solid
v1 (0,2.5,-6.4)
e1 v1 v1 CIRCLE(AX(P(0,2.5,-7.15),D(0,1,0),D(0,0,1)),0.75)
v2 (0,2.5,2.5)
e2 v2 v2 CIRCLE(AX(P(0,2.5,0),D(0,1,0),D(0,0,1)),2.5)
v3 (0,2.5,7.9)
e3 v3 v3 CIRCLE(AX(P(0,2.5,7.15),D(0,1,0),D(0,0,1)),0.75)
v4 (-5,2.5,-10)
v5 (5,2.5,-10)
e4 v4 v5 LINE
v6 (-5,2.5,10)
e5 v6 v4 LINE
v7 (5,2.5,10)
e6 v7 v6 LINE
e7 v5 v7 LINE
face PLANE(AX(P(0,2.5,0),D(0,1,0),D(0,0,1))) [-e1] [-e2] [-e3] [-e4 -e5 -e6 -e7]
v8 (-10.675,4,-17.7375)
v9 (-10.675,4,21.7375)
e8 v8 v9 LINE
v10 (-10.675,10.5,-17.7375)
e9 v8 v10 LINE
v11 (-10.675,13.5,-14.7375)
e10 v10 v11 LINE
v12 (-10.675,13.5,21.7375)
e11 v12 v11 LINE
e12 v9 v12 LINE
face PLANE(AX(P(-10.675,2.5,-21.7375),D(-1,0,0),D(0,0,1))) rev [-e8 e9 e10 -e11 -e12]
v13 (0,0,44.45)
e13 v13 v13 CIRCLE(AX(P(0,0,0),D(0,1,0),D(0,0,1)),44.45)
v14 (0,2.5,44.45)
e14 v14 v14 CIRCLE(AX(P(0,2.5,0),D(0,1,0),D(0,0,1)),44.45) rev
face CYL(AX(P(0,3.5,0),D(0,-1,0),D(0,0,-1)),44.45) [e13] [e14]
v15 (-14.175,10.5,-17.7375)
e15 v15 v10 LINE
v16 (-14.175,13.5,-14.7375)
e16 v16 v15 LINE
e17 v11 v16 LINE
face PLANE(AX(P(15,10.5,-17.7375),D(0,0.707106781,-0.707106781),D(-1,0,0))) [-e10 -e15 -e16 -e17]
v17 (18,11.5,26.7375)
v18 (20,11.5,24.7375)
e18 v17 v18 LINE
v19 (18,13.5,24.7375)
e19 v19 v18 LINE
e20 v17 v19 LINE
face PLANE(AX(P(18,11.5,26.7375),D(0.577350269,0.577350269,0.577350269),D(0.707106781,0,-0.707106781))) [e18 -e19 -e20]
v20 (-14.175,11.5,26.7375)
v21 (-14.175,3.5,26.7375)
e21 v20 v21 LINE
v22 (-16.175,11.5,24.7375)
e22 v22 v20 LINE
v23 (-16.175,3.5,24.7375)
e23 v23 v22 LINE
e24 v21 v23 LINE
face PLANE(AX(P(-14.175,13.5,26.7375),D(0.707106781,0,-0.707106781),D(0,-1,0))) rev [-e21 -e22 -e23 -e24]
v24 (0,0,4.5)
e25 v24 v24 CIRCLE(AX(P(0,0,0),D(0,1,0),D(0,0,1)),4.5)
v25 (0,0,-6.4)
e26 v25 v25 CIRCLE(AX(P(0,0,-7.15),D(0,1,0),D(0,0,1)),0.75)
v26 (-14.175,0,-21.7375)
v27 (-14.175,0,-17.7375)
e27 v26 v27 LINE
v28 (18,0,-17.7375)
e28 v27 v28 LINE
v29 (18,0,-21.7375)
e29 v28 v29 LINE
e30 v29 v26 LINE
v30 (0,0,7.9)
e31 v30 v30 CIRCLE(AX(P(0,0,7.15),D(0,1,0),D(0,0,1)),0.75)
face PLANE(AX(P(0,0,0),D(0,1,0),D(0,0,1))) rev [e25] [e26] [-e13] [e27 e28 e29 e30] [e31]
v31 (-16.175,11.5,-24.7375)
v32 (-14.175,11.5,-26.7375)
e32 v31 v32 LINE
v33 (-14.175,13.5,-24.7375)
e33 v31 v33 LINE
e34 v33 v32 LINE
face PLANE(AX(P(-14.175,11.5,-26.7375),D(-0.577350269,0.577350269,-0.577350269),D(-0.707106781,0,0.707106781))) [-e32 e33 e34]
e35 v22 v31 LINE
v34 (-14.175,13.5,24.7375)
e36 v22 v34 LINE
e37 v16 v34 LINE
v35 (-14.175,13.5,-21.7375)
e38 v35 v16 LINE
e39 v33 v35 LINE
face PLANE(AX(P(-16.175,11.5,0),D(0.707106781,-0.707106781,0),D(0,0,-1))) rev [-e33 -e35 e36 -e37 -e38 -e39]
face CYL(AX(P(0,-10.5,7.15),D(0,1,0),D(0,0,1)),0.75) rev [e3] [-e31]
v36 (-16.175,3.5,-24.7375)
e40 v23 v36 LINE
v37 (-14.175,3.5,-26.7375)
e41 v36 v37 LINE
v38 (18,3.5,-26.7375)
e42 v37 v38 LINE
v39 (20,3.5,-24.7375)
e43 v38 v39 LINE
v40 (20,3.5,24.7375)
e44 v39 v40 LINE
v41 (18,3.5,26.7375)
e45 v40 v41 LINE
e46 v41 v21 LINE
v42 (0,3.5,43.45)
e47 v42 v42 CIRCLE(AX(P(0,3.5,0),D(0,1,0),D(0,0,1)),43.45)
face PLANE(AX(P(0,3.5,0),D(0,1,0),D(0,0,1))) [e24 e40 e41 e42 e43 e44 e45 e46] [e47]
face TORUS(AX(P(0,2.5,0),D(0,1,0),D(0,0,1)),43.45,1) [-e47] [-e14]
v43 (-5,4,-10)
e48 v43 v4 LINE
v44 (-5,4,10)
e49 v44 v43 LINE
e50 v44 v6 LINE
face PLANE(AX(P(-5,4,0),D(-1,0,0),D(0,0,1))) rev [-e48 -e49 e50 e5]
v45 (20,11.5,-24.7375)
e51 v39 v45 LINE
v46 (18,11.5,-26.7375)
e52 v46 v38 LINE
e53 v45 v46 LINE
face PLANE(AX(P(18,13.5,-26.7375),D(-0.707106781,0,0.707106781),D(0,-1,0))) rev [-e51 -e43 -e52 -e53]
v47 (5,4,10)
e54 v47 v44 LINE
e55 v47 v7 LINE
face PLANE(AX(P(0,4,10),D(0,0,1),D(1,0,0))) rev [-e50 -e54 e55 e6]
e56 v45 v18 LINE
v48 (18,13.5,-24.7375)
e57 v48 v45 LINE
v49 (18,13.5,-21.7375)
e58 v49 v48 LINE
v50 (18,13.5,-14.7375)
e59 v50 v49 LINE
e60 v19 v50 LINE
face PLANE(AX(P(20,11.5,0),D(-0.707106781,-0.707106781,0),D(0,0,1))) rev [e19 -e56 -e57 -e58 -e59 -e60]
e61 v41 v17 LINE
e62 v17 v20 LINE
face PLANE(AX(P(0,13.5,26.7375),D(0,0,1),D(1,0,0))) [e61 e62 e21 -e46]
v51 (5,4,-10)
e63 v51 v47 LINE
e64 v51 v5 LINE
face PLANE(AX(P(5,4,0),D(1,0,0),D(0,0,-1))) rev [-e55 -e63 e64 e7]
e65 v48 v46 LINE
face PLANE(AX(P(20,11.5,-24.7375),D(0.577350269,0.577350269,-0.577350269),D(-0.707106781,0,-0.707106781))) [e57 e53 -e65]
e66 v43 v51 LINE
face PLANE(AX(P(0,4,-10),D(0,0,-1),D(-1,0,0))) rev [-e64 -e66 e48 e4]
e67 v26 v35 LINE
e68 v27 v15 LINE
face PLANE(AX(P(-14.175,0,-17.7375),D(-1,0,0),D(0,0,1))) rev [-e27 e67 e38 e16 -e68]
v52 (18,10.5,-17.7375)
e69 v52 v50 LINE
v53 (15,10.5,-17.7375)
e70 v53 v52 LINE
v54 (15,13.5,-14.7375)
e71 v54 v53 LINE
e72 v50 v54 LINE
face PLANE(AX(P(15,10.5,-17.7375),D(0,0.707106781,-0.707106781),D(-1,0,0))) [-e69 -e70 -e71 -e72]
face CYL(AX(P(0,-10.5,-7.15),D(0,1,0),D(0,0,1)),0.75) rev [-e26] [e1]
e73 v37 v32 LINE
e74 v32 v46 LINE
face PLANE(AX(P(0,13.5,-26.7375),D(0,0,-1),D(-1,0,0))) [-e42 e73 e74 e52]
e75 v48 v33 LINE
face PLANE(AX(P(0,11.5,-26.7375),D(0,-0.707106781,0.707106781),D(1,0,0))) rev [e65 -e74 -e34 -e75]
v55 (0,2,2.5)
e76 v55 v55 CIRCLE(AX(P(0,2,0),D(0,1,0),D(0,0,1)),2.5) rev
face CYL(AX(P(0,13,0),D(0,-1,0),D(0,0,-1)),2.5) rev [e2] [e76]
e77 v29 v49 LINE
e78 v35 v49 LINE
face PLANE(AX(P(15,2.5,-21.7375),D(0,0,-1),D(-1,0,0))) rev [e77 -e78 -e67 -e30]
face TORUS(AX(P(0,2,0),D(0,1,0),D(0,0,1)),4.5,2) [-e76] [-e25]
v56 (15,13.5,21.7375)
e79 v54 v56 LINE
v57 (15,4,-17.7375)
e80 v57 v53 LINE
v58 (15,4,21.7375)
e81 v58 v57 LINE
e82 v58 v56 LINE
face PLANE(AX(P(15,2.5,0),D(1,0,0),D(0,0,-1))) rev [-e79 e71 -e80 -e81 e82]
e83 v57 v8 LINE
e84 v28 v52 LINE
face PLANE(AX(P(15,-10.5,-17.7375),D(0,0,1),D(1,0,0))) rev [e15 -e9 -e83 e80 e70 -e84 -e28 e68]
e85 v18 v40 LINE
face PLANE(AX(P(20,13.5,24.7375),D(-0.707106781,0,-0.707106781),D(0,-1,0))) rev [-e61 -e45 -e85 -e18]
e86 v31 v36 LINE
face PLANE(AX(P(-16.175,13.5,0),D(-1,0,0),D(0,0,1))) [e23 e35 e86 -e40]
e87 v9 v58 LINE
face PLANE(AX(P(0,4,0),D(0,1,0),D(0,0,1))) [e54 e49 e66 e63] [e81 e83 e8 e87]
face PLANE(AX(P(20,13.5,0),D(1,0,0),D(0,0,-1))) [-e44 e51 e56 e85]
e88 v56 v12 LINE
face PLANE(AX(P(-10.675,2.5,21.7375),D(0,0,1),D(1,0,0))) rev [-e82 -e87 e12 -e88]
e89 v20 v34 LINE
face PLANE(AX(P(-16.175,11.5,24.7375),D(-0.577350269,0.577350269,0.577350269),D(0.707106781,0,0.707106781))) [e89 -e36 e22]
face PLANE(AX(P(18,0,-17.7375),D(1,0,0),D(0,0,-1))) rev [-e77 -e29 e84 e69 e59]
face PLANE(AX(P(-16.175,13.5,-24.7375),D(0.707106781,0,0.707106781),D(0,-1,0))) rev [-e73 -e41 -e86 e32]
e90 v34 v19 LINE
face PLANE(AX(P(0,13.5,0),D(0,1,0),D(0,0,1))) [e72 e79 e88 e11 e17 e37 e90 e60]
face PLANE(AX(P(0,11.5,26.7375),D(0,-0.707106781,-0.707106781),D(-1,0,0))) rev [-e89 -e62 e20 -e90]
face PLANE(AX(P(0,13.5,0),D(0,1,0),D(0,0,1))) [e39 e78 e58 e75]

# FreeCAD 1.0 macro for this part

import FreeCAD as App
import Part
import Sketcher


def edges_at(feature, points):
    """Names of the edges that pass closest to the given points."""
    edges = feature.Shape.Edges
    near = lambda p: min(range(len(edges)), key=lambda i: edges[i].distToShape(Part.Vertex(*p))[0])
    return sorted({f"Edge{near(p) + 1}" for p in points})

doc = App.newDocument("Part")
params = doc.addObject("Spreadsheet::Sheet", "Params")
for row, (alias, value) in enumerate([
    ("sketch1_diameter", "88.9 mm"),
    ("pad1_length", "3.5 mm"),
    ("pocket1_length", "1 mm"),
    ("pad2_length", "10 mm"),
    ("sketch4_height", "4 mm"),
    ("pocket2_length", "13 mm"),
    ("sketch5_diameter", "1.5 mm"),
    ("pocket3_length", "13 mm"),
    ("sketch6_diameter", "5 mm"),
    ("pocket4_length", "13 mm"),
    ("fillet_radius", "1 mm"),
    ("chamfer_size", "2 mm"),
    ("fillet2_radius", "2 mm"),
    ("sketch7_height", "4 mm"),
    ("sketch7_width", "3.5 mm"),
    ("sketch8_width", "3 mm"),
    ("sketch8_height", "4 mm"),
    ("chamfer2_size", "3 mm"),
    ("sketch9_width", "10 mm"),
    ("sketch9_height", "20 mm"),
    ("pad3_length", "1.5 mm"),
], start=1):
    params.set(f"A{row}", alias)
    params.set(f"B{row}", "=" + value)
    params.setAlias(f"B{row}", alias)

body = doc.addObject("PartDesign::Body", "Body")

# Sketch on XZ plane
sketch1 = doc.addObject("Sketcher::SketchObject", "Sketch")
body.addObject(sketch1)
sketch1.AttachmentSupport = (doc.XZ_Plane, [""])
sketch1.MapMode = "FlatFace"
sketch1.addGeometry(Part.Circle(App.Vector(0, 0, 0), App.Vector(0, 0, 1), 44.45), False)
sketch1.addConstraint(Sketcher.Constraint("Coincident", 0, 3, -1, 1))
sketch1.addConstraint(Sketcher.Constraint("Diameter", 0, 88.9))
sketch1.setExpression("Constraints[1]", "Params.sketch1_diameter")
pad1 = doc.addObject("PartDesign::Pad", "Pad")
body.addObject(pad1)
pad1.Profile = sketch1
pad1.setExpression("Length", "Params.pad1_length")
pad1.Reversed = True

# Sketch on XZ plane
sketch2 = doc.addObject("Sketcher::SketchObject", "Sketch001")
body.addObject(sketch2)
sketch2.AttachmentSupport = (doc.XZ_Plane, [""])
sketch2.MapMode = "FlatFace"
sketch2.AttachmentOffset = App.Placement(App.Vector(0, 0, -3.5), App.Rotation())
sketch2.addGeometry(Part.LineSegment(App.Vector(15, 21.7375, 0), App.Vector(15, -21.7375, 0)), False)
sketch2.addGeometry(Part.LineSegment(App.Vector(15, -21.7375, 0), App.Vector(-10.675, -21.7375, 0)), False)
sketch2.addGeometry(Part.LineSegment(App.Vector(-10.675, -21.7375, 0), App.Vector(-10.675, 21.7375, 0)), False)
sketch2.addGeometry(Part.LineSegment(App.Vector(-10.675, 21.7375, 0), App.Vector(15, 21.7375, 0)), False)
sketch2.addConstraint(Sketcher.Constraint("Coincident", 0, 2, 1, 1))
sketch2.addConstraint(Sketcher.Constraint("Coincident", 1, 2, 2, 1))
sketch2.addConstraint(Sketcher.Constraint("Coincident", 2, 2, 3, 1))
sketch2.addConstraint(Sketcher.Constraint("Coincident", 3, 2, 0, 1))
sketch2.addConstraint(Sketcher.Constraint("Vertical", 0))
sketch2.addConstraint(Sketcher.Constraint("Horizontal", 1))
sketch2.addConstraint(Sketcher.Constraint("Vertical", 2))
sketch2.addConstraint(Sketcher.Constraint("Horizontal", 3))
sketch2.addConstraint(Sketcher.Constraint("DistanceX", -1, 1, 0, 2, 15.0))
sketch2.addConstraint(Sketcher.Constraint("DistanceX", 1, 2, 1, 1, 25.675))
sketch2.addConstraint(Sketcher.Constraint("DistanceY", 0, 2, 0, 1, 43.475))
sketch2.addConstraint(Sketcher.Constraint("DistanceY", 0, 2, -1, 1, 21.7375))
pocket1 = doc.addObject("PartDesign::Pocket", "Pocket")
body.addObject(pocket1)
pocket1.Profile = sketch2
pocket1.setExpression("Length", "Params.pocket1_length")
pocket1.Reversed = True

# Sketch on XZ plane
sketch3 = doc.addObject("Sketcher::SketchObject", "Sketch002")
body.addObject(sketch3)
sketch3.AttachmentSupport = (doc.XZ_Plane, [""])
sketch3.MapMode = "FlatFace"
sketch3.AttachmentOffset = App.Placement(App.Vector(0, 0, -3.5), App.Rotation())
sketch3.addGeometry(Part.LineSegment(App.Vector(-16.175, 26.7375, 0), App.Vector(20, 26.7375, 0)), False)
sketch3.addGeometry(Part.LineSegment(App.Vector(20, 26.7375, 0), App.Vector(20, -26.7375, 0)), False)
sketch3.addGeometry(Part.LineSegment(App.Vector(20, -26.7375, 0), App.Vector(-16.175, -26.7375, 0)), False)
sketch3.addGeometry(Part.LineSegment(App.Vector(-16.175, -26.7375, 0), App.Vector(-16.175, 26.7375, 0)), False)
sketch3.addGeometry(Part.LineSegment(App.Vector(-10.675, 21.7375, 0), App.Vector(-10.675, -21.7375, 0)), False)
sketch3.addGeometry(Part.LineSegment(App.Vector(-10.675, -21.7375, 0), App.Vector(15, -21.7375, 0)), False)
sketch3.addGeometry(Part.LineSegment(App.Vector(15, -21.7375, 0), App.Vector(15, 21.7375, 0)), False)
sketch3.addGeometry(Part.LineSegment(App.Vector(15, 21.7375, 0), App.Vector(-10.675, 21.7375, 0)), False)
sketch3.addConstraint(Sketcher.Constraint("Coincident", 0, 2, 1, 1))
sketch3.addConstraint(Sketcher.Constraint("Coincident", 1, 2, 2, 1))
sketch3.addConstraint(Sketcher.Constraint("Coincident", 2, 2, 3, 1))
sketch3.addConstraint(Sketcher.Constraint("Coincident", 3, 2, 0, 1))
sketch3.addConstraint(Sketcher.Constraint("Coincident", 4, 2, 5, 1))
sketch3.addConstraint(Sketcher.Constraint("Coincident", 5, 2, 6, 1))
sketch3.addConstraint(Sketcher.Constraint("Coincident", 6, 2, 7, 1))
sketch3.addConstraint(Sketcher.Constraint("Coincident", 7, 2, 4, 1))
sketch3.addConstraint(Sketcher.Constraint("Horizontal", 0))
sketch3.addConstraint(Sketcher.Constraint("Vertical", 1))
sketch3.addConstraint(Sketcher.Constraint("Horizontal", 2))
sketch3.addConstraint(Sketcher.Constraint("Vertical", 3))
sketch3.addConstraint(Sketcher.Constraint("Vertical", 4))
sketch3.addConstraint(Sketcher.Constraint("Horizontal", 5))
sketch3.addConstraint(Sketcher.Constraint("Vertical", 6))
sketch3.addConstraint(Sketcher.Constraint("Horizontal", 7))
sketch3.addConstraint(Sketcher.Constraint("DistanceX", -1, 1, 0, 2, 20.0))
sketch3.addConstraint(Sketcher.Constraint("DistanceX", -1, 1, 5, 2, 15.0))
sketch3.addConstraint(Sketcher.Constraint("DistanceY", 2, 2, 4, 2, 5.0))
sketch3.addConstraint(Sketcher.Constraint("DistanceY", 6, 2, 0, 2, 5.0))
sketch3.addConstraint(Sketcher.Constraint("DistanceX", 2, 2, 4, 2, 5.5))
sketch3.addConstraint(Sketcher.Constraint("DistanceX", 0, 1, 0, 2, 36.175))
sketch3.addConstraint(Sketcher.Constraint("DistanceY", 1, 2, 1, 1, 53.475))
sketch3.addConstraint(Sketcher.Constraint("DistanceY", -1, 1, 0, 2, 26.7375))
pad2 = doc.addObject("PartDesign::Pad", "Pad001")
body.addObject(pad2)
pad2.Profile = sketch3
pad2.setExpression("Length", "Params.pad2_length")
pad2.Reversed = True

# Sketch on XZ plane
sketch4 = doc.addObject("Sketcher::SketchObject", "Sketch003")
body.addObject(sketch4)
sketch4.AttachmentSupport = (doc.XZ_Plane, [""])
sketch4.MapMode = "FlatFace"
sketch4.AttachmentOffset = App.Placement(App.Vector(0, 0, -2.5), App.Rotation())
sketch4.addGeometry(Part.LineSegment(App.Vector(-10.675, -21.7375, 0), App.Vector(-10.675, -17.7375, 0)), False)
sketch4.addGeometry(Part.LineSegment(App.Vector(-10.675, -17.7375, 0), App.Vector(15, -17.7375, 0)), False)
sketch4.addGeometry(Part.LineSegment(App.Vector(15, -17.7375, 0), App.Vector(15, -21.7375, 0)), False)
sketch4.addGeometry(Part.LineSegment(App.Vector(15, -21.7375, 0), App.Vector(-10.675, -21.7375, 0)), False)
sketch4.addConstraint(Sketcher.Constraint("Coincident", 0, 2, 1, 1))
sketch4.addConstraint(Sketcher.Constraint("Coincident", 1, 2, 2, 1))
sketch4.addConstraint(Sketcher.Constraint("Coincident", 2, 2, 3, 1))
sketch4.addConstraint(Sketcher.Constraint("Coincident", 3, 2, 0, 1))
sketch4.addConstraint(Sketcher.Constraint("Vertical", 0))
sketch4.addConstraint(Sketcher.Constraint("Horizontal", 1))
sketch4.addConstraint(Sketcher.Constraint("Vertical", 2))
sketch4.addConstraint(Sketcher.Constraint("Horizontal", 3))
sketch4.addConstraint(Sketcher.Constraint("DistanceY", 0, 1, 0, 2, 4.0))
sketch4.addConstraint(Sketcher.Constraint("DistanceX", -1, 1, 1, 2, 15.0))
sketch4.addConstraint(Sketcher.Constraint("DistanceX", 1, 1, 1, 2, 25.675))
sketch4.addConstraint(Sketcher.Constraint("DistanceY", 0, 2, -1, 1, 17.7375))
sketch4.setExpression("Constraints[8]", "Params.sketch4_height")
pocket2 = doc.addObject("PartDesign::Pocket", "Pocket001")
body.addObject(pocket2)
pocket2.Profile = sketch4
pocket2.setExpression("Length", "Params.pocket2_length")
pocket2.Reversed = True

# Sketch on XZ plane
sketch5 = doc.addObject("Sketcher::SketchObject", "Sketch004")
body.addObject(sketch5)
sketch5.AttachmentSupport = (doc.XZ_Plane, [""])
sketch5.MapMode = "FlatFace"
sketch5.AttachmentOffset = App.Placement(App.Vector(0, 0, -2.5), App.Rotation())
sketch5.addGeometry(Part.Circle(App.Vector(0, 7.15, 0), App.Vector(0, 0, 1), 0.75), False)
sketch5.addGeometry(Part.Circle(App.Vector(0, -7.15, 0), App.Vector(0, 0, 1), 0.75), False)
sketch5.addConstraint(Sketcher.Constraint("Equal", 0, 1))
sketch5.addConstraint(Sketcher.Constraint("Symmetric", 0, 3, 1, 3, -1, 1))
sketch5.addConstraint(Sketcher.Constraint("PointOnObject", 0, 3, -2))
sketch5.addConstraint(Sketcher.Constraint("Diameter", 0, 1.5))
sketch5.addConstraint(Sketcher.Constraint("DistanceY", 1, 3, 0, 3, 14.3))
sketch5.setExpression("Constraints[3]", "Params.sketch5_diameter")
pocket3 = doc.addObject("PartDesign::Pocket", "Pocket002")
body.addObject(pocket3)
pocket3.Profile = sketch5
pocket3.setExpression("Length", "Params.pocket3_length")
pocket3.Reversed = True

# Sketch on XZ plane
sketch6 = doc.addObject("Sketcher::SketchObject", "Sketch005")
body.addObject(sketch6)
sketch6.AttachmentSupport = (doc.XZ_Plane, [""])
sketch6.MapMode = "FlatFace"
sketch6.addGeometry(Part.Circle(App.Vector(0, 0, 0), App.Vector(0, 0, 1), 2.5), False)
sketch6.addConstraint(Sketcher.Constraint("Coincident", 0, 3, -1, 1))
sketch6.addConstraint(Sketcher.Constraint("Diameter", 0, 5.0))
sketch6.setExpression("Constraints[1]", "Params.sketch6_diameter")
pocket4 = doc.addObject("PartDesign::Pocket", "Pocket003")
body.addObject(pocket4)
pocket4.Profile = sketch6
pocket4.setExpression("Length", "Params.pocket4_length")
doc.recompute()

fillet = doc.addObject("PartDesign::Fillet", "Fillet")
body.addObject(fillet)
fillet.Base = (pocket4, edges_at(pocket4, [(-44.45, 3.5, 0)]))
fillet.setExpression("Radius", "Params.fillet_radius")
doc.recompute()

chamfer = doc.addObject("PartDesign::Chamfer", "Chamfer")
body.addObject(chamfer)
chamfer.Base = (fillet, edges_at(fillet, [
    (1.913, 13.5, 26.738),
    (-16.175, 8.5, 26.738),
    (20, 13.5, 0),
    (20, 8.5, 26.738),
    (1.913, 13.5, -26.738),
    (20, 8.5, -26.738),
    (-16.175, 13.5, 0),
    (-16.175, 8.5, -26.738),
]))
chamfer.setExpression("Size", "Params.chamfer_size")
doc.recompute()

fillet2 = doc.addObject("PartDesign::Fillet", "Fillet001")
body.addObject(fillet2)
fillet2.Base = (chamfer, edges_at(chamfer, [(-2.5, 0, 0)]))
fillet2.setExpression("Radius", "Params.fillet2_radius")

# Sketch on XZ plane
sketch7 = doc.addObject("Sketcher::SketchObject", "Sketch006")
body.addObject(sketch7)
sketch7.AttachmentSupport = (doc.XZ_Plane, [""])
sketch7.MapMode = "FlatFace"
sketch7.AttachmentOffset = App.Placement(App.Vector(0, 0, -13.5), App.Rotation())
sketch7.addGeometry(Part.LineSegment(App.Vector(-14.175, -21.7375, 0), App.Vector(-14.175, -17.7375, 0)), False)
sketch7.addGeometry(Part.LineSegment(App.Vector(-14.175, -17.7375, 0), App.Vector(-10.675, -17.7375, 0)), False)
sketch7.addGeometry(Part.LineSegment(App.Vector(-10.675, -17.7375, 0), App.Vector(-10.675, -21.7375, 0)), False)
sketch7.addGeometry(Part.LineSegment(App.Vector(-10.675, -21.7375, 0), App.Vector(-14.175, -21.7375, 0)), False)
sketch7.addConstraint(Sketcher.Constraint("Coincident", 0, 2, 1, 1))
sketch7.addConstraint(Sketcher.Constraint("Coincident", 1, 2, 2, 1))
sketch7.addConstraint(Sketcher.Constraint("Coincident", 2, 2, 3, 1))
sketch7.addConstraint(Sketcher.Constraint("Coincident", 3, 2, 0, 1))
sketch7.addConstraint(Sketcher.Constraint("Vertical", 0))
sketch7.addConstraint(Sketcher.Constraint("Horizontal", 1))
sketch7.addConstraint(Sketcher.Constraint("Vertical", 2))
sketch7.addConstraint(Sketcher.Constraint("Horizontal", 3))
sketch7.addConstraint(Sketcher.Constraint("DistanceY", 0, 1, 0, 2, 4.0))
sketch7.addConstraint(Sketcher.Constraint("DistanceX", 1, 1, 1, 2, 3.5))
sketch7.addConstraint(Sketcher.Constraint("DistanceX", 0, 2, -1, 1, 14.175))
sketch7.addConstraint(Sketcher.Constraint("DistanceY", 0, 2, -1, 1, 17.7375))
sketch7.setExpression("Constraints[8]", "Params.sketch7_height")
sketch7.setExpression("Constraints[9]", "Params.sketch7_width")
pocket5 = doc.addObject("PartDesign::Pocket", "Pocket004")
body.addObject(pocket5)
pocket5.Profile = sketch7
pocket5.Type = "ThroughAll"
pocket5.Reversed = True

# Sketch on XZ plane
sketch8 = doc.addObject("Sketcher::SketchObject", "Sketch007")
body.addObject(sketch8)
sketch8.AttachmentSupport = (doc.XZ_Plane, [""])
sketch8.MapMode = "FlatFace"
sketch8.AttachmentOffset = App.Placement(App.Vector(0, 0, -13.5), App.Rotation())
sketch8.addGeometry(Part.LineSegment(App.Vector(15, -21.7375, 0), App.Vector(15, -17.7375, 0)), False)
sketch8.addGeometry(Part.LineSegment(App.Vector(15, -17.7375, 0), App.Vector(18, -17.7375, 0)), False)
sketch8.addGeometry(Part.LineSegment(App.Vector(18, -17.7375, 0), App.Vector(18, -21.7375, 0)), False)
sketch8.addGeometry(Part.LineSegment(App.Vector(18, -21.7375, 0), App.Vector(15, -21.7375, 0)), False)
sketch8.addConstraint(Sketcher.Constraint("Coincident", 0, 2, 1, 1))
sketch8.addConstraint(Sketcher.Constraint("Coincident", 1, 2, 2, 1))
sketch8.addConstraint(Sketcher.Constraint("Coincident", 2, 2, 3, 1))
sketch8.addConstraint(Sketcher.Constraint("Coincident", 3, 2, 0, 1))
sketch8.addConstraint(Sketcher.Constraint("Vertical", 0))
sketch8.addConstraint(Sketcher.Constraint("Horizontal", 1))
sketch8.addConstraint(Sketcher.Constraint("Vertical", 2))
sketch8.addConstraint(Sketcher.Constraint("Horizontal", 3))
sketch8.addConstraint(Sketcher.Constraint("DistanceX", 1, 1, 1, 2, 3.0))
sketch8.addConstraint(Sketcher.Constraint("DistanceY", 0, 1, 0, 2, 4.0))
sketch8.addConstraint(Sketcher.Constraint("DistanceX", -1, 1, 0, 2, 15.0))
sketch8.addConstraint(Sketcher.Constraint("DistanceY", 0, 2, -1, 1, 17.7375))
sketch8.setExpression("Constraints[8]", "Params.sketch8_width")
sketch8.setExpression("Constraints[9]", "Params.sketch8_height")
pocket6 = doc.addObject("PartDesign::Pocket", "Pocket005")
body.addObject(pocket6)
pocket6.Profile = sketch8
pocket6.Type = "ThroughAll"
pocket6.Reversed = True
doc.recompute()

chamfer2 = doc.addObject("PartDesign::Chamfer", "Chamfer001")
body.addObject(chamfer2)
chamfer2.Base = (pocket6, edges_at(pocket6, [(-12.425, 13.5, -17.738), (16.5, 13.5, -17.738)]))
chamfer2.setExpression("Size", "Params.chamfer2_size")

# Sketch on XZ plane
sketch9 = doc.addObject("Sketcher::SketchObject", "Sketch008")
body.addObject(sketch9)
sketch9.AttachmentSupport = (doc.XZ_Plane, [""])
sketch9.MapMode = "FlatFace"
sketch9.AttachmentOffset = App.Placement(App.Vector(0, 0, -2.5), App.Rotation())
sketch9.addGeometry(Part.LineSegment(App.Vector(-10.675, -17.7375, 0), App.Vector(-10.675, 21.7375, 0)), False)
sketch9.addGeometry(Part.LineSegment(App.Vector(-10.675, 21.7375, 0), App.Vector(15, 21.7375, 0)), False)
sketch9.addGeometry(Part.LineSegment(App.Vector(15, 21.7375, 0), App.Vector(15, -17.7375, 0)), False)
sketch9.addGeometry(Part.LineSegment(App.Vector(15, -17.7375, 0), App.Vector(-10.675, -17.7375, 0)), False)
sketch9.addGeometry(Part.LineSegment(App.Vector(-5, 10, 0), App.Vector(-5, -10, 0)), False)
sketch9.addGeometry(Part.LineSegment(App.Vector(-5, -10, 0), App.Vector(5, -10, 0)), False)
sketch9.addGeometry(Part.LineSegment(App.Vector(5, -10, 0), App.Vector(5, 10, 0)), False)
sketch9.addGeometry(Part.LineSegment(App.Vector(5, 10, 0), App.Vector(-5, 10, 0)), False)
sketch9.addConstraint(Sketcher.Constraint("Coincident", 0, 2, 1, 1))
sketch9.addConstraint(Sketcher.Constraint("Coincident", 1, 2, 2, 1))
sketch9.addConstraint(Sketcher.Constraint("Coincident", 2, 2, 3, 1))
sketch9.addConstraint(Sketcher.Constraint("Coincident", 3, 2, 0, 1))
sketch9.addConstraint(Sketcher.Constraint("Coincident", 4, 2, 5, 1))
sketch9.addConstraint(Sketcher.Constraint("Coincident", 5, 2, 6, 1))
sketch9.addConstraint(Sketcher.Constraint("Coincident", 6, 2, 7, 1))
sketch9.addConstraint(Sketcher.Constraint("Coincident", 7, 2, 4, 1))
sketch9.addConstraint(Sketcher.Constraint("Vertical", 0))
sketch9.addConstraint(Sketcher.Constraint("Horizontal", 1))
sketch9.addConstraint(Sketcher.Constraint("Vertical", 2))
sketch9.addConstraint(Sketcher.Constraint("Horizontal", 3))
sketch9.addConstraint(Sketcher.Constraint("Vertical", 4))
sketch9.addConstraint(Sketcher.Constraint("Horizontal", 5))
sketch9.addConstraint(Sketcher.Constraint("Vertical", 6))
sketch9.addConstraint(Sketcher.Constraint("Horizontal", 7))
sketch9.addConstraint(Sketcher.Constraint("Symmetric", 4, 2, 6, 2, -1, 1))
sketch9.addConstraint(Sketcher.Constraint("DistanceX", 5, 1, 5, 2, 10.0))
sketch9.addConstraint(Sketcher.Constraint("DistanceY", 4, 2, 4, 1, 20.0))
sketch9.addConstraint(Sketcher.Constraint("DistanceX", -1, 1, 1, 2, 15.0))
sketch9.addConstraint(Sketcher.Constraint("DistanceX", 1, 1, 1, 2, 25.675))
sketch9.addConstraint(Sketcher.Constraint("DistanceY", 0, 1, 0, 2, 39.475))
sketch9.addConstraint(Sketcher.Constraint("DistanceY", -1, 1, 0, 2, 21.7375))
sketch9.setExpression("Constraints[17]", "Params.sketch9_width")
sketch9.setExpression("Constraints[18]", "Params.sketch9_height")
pad3 = doc.addObject("PartDesign::Pad", "Pad002")
body.addObject(pad3)
pad3.Profile = sketch9
pad3.setExpression("Length", "Params.pad3_length")
pad3.Reversed = True

doc.recompute()
